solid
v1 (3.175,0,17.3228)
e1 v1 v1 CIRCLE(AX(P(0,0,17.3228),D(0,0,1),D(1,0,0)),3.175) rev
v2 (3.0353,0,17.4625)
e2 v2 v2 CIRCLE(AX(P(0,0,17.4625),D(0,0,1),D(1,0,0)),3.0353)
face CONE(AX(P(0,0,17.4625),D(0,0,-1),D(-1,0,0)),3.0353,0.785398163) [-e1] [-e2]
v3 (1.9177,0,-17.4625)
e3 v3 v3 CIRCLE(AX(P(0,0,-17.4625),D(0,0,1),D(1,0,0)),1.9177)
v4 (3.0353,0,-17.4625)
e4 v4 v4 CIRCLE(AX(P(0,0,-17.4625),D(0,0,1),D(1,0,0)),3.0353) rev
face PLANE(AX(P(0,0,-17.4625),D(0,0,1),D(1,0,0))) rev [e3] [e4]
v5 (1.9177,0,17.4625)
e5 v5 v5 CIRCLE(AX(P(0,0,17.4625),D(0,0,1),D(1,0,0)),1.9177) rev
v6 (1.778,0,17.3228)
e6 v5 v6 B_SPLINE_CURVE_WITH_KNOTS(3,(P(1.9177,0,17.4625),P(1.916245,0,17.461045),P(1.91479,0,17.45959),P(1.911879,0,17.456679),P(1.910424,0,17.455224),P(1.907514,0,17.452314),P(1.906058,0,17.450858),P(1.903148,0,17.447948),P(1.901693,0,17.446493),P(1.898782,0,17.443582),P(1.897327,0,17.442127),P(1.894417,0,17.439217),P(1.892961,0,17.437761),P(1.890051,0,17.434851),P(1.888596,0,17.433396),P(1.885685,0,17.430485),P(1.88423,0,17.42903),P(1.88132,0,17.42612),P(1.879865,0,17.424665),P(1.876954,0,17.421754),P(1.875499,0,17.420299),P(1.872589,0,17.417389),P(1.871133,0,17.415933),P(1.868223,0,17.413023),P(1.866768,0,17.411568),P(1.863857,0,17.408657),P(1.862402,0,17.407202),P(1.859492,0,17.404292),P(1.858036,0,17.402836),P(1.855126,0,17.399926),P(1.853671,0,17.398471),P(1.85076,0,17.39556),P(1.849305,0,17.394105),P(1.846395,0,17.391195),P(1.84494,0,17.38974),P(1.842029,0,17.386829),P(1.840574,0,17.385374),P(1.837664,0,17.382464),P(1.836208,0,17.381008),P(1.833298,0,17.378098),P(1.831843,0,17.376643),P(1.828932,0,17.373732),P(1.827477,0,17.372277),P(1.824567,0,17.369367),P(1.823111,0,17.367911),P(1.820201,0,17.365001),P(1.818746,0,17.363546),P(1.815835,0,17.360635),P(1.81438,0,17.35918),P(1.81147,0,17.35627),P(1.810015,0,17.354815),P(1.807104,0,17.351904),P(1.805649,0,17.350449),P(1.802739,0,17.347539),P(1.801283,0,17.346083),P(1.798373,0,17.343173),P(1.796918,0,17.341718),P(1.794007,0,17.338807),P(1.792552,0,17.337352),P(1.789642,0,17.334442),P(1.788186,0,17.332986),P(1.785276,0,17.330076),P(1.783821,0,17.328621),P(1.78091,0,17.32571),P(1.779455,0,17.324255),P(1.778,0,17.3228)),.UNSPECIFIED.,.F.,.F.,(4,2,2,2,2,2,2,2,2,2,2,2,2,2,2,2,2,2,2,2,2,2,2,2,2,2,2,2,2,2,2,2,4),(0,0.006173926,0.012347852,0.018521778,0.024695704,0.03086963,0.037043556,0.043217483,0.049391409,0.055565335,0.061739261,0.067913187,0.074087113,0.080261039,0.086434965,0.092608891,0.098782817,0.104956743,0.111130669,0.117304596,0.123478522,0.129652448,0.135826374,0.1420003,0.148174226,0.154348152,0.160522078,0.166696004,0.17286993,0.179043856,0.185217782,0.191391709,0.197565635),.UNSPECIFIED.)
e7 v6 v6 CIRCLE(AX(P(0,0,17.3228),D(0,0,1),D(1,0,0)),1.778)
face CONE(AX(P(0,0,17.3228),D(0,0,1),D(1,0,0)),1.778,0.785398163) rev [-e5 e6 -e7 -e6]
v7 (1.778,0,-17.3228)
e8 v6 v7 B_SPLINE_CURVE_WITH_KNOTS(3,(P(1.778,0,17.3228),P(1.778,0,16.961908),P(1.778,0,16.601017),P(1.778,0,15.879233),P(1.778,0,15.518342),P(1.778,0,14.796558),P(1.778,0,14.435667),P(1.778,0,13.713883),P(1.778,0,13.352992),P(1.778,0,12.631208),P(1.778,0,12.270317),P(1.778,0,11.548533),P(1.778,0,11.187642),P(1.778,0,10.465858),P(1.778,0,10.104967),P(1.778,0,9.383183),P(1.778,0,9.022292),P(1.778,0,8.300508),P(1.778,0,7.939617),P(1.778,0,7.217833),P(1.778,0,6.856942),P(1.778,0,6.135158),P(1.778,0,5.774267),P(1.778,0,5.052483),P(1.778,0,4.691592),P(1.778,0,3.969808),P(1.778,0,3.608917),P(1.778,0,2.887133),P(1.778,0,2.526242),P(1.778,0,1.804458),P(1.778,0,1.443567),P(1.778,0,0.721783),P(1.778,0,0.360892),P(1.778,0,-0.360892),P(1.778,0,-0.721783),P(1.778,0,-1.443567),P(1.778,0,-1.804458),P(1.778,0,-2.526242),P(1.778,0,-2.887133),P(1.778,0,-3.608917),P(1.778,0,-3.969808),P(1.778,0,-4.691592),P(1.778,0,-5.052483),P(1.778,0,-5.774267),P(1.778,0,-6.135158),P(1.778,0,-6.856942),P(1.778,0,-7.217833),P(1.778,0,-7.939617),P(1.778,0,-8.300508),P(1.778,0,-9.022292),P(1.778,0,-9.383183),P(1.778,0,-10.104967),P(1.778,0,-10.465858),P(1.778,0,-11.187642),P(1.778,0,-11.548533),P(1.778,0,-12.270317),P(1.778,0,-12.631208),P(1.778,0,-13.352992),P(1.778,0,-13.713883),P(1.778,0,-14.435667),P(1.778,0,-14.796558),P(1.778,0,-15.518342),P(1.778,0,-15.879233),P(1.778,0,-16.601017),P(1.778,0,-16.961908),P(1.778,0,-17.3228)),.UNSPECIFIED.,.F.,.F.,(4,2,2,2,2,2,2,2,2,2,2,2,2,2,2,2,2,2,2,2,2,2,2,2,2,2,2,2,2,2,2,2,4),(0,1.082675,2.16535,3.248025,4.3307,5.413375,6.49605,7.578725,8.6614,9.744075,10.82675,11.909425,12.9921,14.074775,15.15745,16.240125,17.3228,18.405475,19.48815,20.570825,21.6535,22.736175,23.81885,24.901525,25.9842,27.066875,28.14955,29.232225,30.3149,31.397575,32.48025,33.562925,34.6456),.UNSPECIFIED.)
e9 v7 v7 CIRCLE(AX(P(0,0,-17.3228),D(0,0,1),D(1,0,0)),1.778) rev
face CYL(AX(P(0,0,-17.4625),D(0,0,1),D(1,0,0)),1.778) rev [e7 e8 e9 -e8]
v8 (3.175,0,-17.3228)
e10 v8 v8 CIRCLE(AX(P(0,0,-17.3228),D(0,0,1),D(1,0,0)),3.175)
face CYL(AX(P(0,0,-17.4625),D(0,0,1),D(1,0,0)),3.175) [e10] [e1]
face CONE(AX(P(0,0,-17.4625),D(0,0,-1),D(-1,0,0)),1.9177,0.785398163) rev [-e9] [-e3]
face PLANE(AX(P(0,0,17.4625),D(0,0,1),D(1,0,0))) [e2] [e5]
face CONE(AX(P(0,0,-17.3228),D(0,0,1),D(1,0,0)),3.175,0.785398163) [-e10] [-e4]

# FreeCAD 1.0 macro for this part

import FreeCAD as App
import Part
import Sketcher
from FreeCAD import Vector
Q = App.Units.Quantity


def edges_at(feature, points):
    """Names of the edges that pass closest to the given points."""
    edges = feature.Shape.Edges
    near = lambda p: min(range(len(edges)), key=lambda i: edges[i].distToShape(Part.Vertex(*p))[0])
    return sorted({f"Edge{near(p) + 1}" for p in points})

doc = App.newDocument("Part")
body = doc.addObject("PartDesign::Body", "Body")

# Sketch on XY plane
sketch1 = doc.addObject("Sketcher::SketchObject", "Sketch")
body.addObject(sketch1)
sketch1.AttachmentSupport = (doc.XY_Plane, [""])
sketch1.MapMode = "FlatFace"
sketch1.addGeometry([
    Part.Circle(Vector(0, 0, 0), Vector(0, 0, 1), 3.175),
    Part.Circle(Vector(0, 0, 0), Vector(0, 0, 1), 1.778),
], False)
sketch1.addConstraint([
    Sketcher.Constraint("Coincident", 0, 3, -1, 1),
    Sketcher.Constraint("Coincident", 1, 3, -1, 1),
    Sketcher.Constraint("Diameter", 0, Q("0.25 in")),
    Sketcher.Constraint("Diameter", 1, Q("0.14 in")),
])
pad1 = doc.addObject("PartDesign::Pad", "Pad")
body.addObject(pad1)
pad1.Profile = sketch1
pad1.Type = "TwoLengths"
pad1.Length = Q("0.6875 in")
pad1.Length2 = Q("0.6875 in")
doc.recompute()

chamfer = doc.addObject("PartDesign::Chamfer", "Chamfer")
body.addObject(chamfer)
chamfer.Base = (pad1, edges_at(pad1, [
    (-3.175, 0, -17.462),
    (-1.778, 0, -17.462),
    (-3.175, 0, 17.462),
    (-1.778, 0, 17.462),
]))
chamfer.Size = Q("0.0055 in")

doc.recompute()
